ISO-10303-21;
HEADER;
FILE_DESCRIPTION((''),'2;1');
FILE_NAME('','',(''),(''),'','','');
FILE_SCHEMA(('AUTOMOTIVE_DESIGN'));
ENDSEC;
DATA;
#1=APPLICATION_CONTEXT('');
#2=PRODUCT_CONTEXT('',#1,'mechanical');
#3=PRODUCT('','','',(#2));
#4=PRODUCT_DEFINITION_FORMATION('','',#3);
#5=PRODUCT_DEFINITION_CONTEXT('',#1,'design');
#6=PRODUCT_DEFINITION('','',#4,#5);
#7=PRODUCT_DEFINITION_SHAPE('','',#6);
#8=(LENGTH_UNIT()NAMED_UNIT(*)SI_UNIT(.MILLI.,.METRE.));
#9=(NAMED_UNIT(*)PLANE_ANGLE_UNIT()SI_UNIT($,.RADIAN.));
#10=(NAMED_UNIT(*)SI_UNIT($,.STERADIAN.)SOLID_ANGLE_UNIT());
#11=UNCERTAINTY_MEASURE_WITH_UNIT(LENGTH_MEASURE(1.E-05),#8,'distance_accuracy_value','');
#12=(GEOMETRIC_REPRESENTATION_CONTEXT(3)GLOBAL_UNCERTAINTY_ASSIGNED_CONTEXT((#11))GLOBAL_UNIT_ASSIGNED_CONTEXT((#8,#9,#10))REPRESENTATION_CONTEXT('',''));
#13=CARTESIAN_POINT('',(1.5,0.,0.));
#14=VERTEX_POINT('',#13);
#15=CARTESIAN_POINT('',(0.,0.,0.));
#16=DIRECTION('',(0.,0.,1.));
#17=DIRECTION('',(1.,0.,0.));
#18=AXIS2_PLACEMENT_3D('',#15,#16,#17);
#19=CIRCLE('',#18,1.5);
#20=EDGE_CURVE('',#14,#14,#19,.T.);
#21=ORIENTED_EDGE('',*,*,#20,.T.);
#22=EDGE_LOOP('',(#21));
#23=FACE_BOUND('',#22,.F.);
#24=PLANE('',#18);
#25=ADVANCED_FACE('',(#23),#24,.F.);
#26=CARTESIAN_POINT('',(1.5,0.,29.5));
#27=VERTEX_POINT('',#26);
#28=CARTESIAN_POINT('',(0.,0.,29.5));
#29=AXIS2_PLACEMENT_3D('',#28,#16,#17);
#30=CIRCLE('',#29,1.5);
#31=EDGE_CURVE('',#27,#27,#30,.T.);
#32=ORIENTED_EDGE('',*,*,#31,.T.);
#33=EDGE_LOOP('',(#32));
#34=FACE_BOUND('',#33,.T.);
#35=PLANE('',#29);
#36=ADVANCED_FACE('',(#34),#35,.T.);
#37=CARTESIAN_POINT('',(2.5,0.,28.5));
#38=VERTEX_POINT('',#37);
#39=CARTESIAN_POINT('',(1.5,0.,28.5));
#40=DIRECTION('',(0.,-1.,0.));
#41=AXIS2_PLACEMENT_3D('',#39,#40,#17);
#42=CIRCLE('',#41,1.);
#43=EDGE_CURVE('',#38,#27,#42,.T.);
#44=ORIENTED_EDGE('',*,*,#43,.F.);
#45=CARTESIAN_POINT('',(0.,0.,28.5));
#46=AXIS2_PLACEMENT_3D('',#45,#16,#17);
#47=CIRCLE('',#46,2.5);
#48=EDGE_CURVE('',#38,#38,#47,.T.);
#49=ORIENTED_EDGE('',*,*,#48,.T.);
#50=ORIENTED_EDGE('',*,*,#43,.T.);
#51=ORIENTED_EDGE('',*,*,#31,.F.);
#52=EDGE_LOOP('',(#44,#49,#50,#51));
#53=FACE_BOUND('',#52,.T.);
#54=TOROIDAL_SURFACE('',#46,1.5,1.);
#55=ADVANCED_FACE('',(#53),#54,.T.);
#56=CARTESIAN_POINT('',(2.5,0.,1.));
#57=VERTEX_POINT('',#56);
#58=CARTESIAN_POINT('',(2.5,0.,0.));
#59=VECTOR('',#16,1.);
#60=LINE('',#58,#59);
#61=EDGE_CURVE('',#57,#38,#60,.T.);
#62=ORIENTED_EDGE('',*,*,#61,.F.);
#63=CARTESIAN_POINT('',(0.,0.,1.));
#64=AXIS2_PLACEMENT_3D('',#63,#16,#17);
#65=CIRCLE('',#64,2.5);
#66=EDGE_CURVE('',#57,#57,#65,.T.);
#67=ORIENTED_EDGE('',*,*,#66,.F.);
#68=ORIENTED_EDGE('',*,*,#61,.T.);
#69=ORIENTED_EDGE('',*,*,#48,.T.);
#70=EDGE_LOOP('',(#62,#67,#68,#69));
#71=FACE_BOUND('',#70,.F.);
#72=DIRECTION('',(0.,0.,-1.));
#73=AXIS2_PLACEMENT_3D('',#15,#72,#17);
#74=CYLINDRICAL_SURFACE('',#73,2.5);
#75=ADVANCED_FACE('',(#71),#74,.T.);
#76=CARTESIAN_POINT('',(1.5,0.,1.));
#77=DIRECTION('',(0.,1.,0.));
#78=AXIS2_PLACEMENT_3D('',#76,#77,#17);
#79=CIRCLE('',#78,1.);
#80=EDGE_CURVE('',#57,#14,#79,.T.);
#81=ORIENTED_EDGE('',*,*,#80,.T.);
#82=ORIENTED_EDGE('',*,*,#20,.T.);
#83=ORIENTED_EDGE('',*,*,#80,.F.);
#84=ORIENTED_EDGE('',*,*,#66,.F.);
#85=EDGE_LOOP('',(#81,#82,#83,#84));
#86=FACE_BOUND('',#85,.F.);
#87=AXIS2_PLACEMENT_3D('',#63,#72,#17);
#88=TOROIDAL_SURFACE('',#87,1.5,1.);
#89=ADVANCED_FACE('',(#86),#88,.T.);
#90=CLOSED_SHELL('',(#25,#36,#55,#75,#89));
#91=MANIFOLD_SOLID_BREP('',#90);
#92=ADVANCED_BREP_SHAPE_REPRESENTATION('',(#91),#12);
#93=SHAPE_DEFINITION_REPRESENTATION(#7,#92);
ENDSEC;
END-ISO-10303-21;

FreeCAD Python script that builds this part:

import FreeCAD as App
import Part
import Sketcher

V = App.Vector


def edges_at(feature, points):
    """Names of the edges that pass closest to the given points."""
    edges = feature.Shape.Edges
    near = lambda p: min(range(len(edges)), key=lambda i: edges[i].distToShape(Part.Vertex(*p))[0])
    return sorted({f"Edge{near(p) + 1}" for p in points})

doc = App.newDocument("Part")
params = doc.addObject("Spreadsheet::Sheet", "Params")
for row, (alias, value) in enumerate([
    ("sketch1_diameter", "5 mm"),
    ("pad1_length", "29.5 mm"),
    ("fillet_radius", "1 mm"),
    ("fillet2_radius", "1 mm"),
], start=1):
    params.set(f"A{row}", alias)
    params.set(f"B{row}", "=" + value)
    params.setAlias(f"B{row}", alias)

body = doc.addObject("PartDesign::Body", "Body")

sketch1 = body.newObject("Sketcher::SketchObject", "Sketch")
sketch1.AttachmentSupport = (doc.getObject("XY_Plane"), [""])
sketch1.MapMode = "FlatFace"
sketch1.addGeometry(Part.Circle(V(0, 0, 0), V(0, 0, 1), 2.5), False)
sketch1.addConstraint(Sketcher.Constraint("Coincident", 0, 3, -1, 1))
sketch1.addConstraint(Sketcher.Constraint("Diameter", 0, 5.0))
sketch1.setExpression("Constraints[1]", "Params.sketch1_diameter")
pad1 = body.newObject("PartDesign::Pad", "Pad")
pad1.Profile = sketch1
pad1.setExpression("Length", "Params.pad1_length")
doc.recompute()

fillet = body.newObject("PartDesign::Fillet", "Fillet")
fillet.Base = (pad1, edges_at(pad1, [(-2.5, 0, 0)]))
fillet.setExpression("Radius", "Params.fillet_radius")
doc.recompute()

fillet2 = body.newObject("PartDesign::Fillet", "Fillet001")
fillet2.Base = (fillet, edges_at(fillet, [(-2.5, 0, 29.5)]))
fillet2.setExpression("Radius", "Params.fillet2_radius")

doc.recompute()
